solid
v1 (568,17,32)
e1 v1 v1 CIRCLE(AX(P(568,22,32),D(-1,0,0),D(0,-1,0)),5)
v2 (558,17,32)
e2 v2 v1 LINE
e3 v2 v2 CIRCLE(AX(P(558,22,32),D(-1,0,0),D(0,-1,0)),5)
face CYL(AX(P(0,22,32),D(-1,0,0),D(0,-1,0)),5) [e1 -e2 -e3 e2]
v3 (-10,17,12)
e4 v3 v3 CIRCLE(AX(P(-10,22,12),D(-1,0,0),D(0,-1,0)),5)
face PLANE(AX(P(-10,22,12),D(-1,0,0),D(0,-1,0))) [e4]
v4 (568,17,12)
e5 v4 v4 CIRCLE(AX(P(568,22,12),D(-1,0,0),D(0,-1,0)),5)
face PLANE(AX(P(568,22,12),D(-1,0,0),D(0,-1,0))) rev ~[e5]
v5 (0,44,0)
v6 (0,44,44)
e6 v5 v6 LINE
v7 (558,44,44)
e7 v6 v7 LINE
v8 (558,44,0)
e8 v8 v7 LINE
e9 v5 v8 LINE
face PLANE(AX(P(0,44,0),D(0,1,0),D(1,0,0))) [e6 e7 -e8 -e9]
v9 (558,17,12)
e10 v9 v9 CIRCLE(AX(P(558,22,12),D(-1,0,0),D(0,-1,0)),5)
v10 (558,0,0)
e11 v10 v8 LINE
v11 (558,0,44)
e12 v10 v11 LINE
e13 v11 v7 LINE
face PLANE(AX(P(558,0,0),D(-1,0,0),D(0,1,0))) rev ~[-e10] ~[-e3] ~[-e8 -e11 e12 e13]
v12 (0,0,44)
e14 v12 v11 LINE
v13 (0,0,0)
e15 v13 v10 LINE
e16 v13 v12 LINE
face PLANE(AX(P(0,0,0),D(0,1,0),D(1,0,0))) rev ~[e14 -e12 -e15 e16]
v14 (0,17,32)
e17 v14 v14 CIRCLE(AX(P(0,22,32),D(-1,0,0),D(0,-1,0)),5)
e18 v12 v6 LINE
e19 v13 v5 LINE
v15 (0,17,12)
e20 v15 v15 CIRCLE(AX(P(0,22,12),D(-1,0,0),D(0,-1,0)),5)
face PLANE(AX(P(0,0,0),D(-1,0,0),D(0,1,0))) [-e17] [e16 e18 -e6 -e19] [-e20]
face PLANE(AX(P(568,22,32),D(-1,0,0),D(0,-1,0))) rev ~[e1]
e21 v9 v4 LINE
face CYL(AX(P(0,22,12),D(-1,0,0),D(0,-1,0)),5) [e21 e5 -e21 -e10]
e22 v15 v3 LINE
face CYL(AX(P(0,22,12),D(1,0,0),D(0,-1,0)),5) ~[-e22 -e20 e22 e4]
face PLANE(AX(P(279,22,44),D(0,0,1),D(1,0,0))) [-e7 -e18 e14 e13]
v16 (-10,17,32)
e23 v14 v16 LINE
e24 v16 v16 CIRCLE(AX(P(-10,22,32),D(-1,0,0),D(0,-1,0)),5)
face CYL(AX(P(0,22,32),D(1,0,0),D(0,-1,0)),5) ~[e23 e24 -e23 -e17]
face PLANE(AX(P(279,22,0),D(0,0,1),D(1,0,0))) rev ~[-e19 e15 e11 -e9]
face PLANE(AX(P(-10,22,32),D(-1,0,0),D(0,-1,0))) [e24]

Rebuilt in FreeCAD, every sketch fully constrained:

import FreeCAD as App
import Part
import Sketcher
from FreeCAD import Vector


def add_polygon(sketch, points):
    """Adds a closed chain of lines whose ends are joined by coincident constraints."""
    first, n = sketch.GeometryCount, len(points)
    for a, b in zip(points, points[1:] + points[:1]):
        sketch.addGeometry(Part.LineSegment(App.Vector(*a, 0), App.Vector(*b, 0)), False)
    for i in range(n):
        sketch.addConstraint(Sketcher.Constraint("Coincident", first + i, 2, first + (i + 1) % n, 1))

doc = App.newDocument("Part")
body = doc.addObject("PartDesign::Body", "Body")

sketch1 = doc.addObject("Sketcher::SketchObject", "Sketch")
body.addObject(sketch1)
sketch1.AttachmentSupport = (doc.XY_Plane, [""])
sketch1.MapMode = "FlatFace"
add_polygon(sketch1, [(0, 44), (0, 0), (558, 0), (558, 44)])
sketch1.addConstraint(Sketcher.Constraint("Vertical", 0))
sketch1.addConstraint(Sketcher.Constraint("Horizontal", 1))
sketch1.addConstraint(Sketcher.Constraint("Vertical", 2))
sketch1.addConstraint(Sketcher.Constraint("Horizontal", 3))
sketch1.addConstraint(Sketcher.Constraint("Coincident", 0, 2, -1, 1))
sketch1.addConstraint(Sketcher.Constraint("DistanceX", 1, 1, 1, 2, 558.0))
sketch1.addConstraint(Sketcher.Constraint("DistanceY", 0, 2, 0, 1, 44.0))
pad1 = doc.addObject("PartDesign::Pad", "Pad")
body.addObject(pad1)
pad1.Profile = sketch1
pad1.Length = 44

sketch2 = doc.addObject("Sketcher::SketchObject", "Sketch001")
body.addObject(sketch2)
sketch2.AttachmentSupport = (doc.YZ_Plane, [""])
sketch2.MapMode = "FlatFace"
sketch2.addGeometry(Part.Circle(Vector(22, 32, 0), Vector(0, 0, 1), 5), False)
sketch2.addGeometry(Part.Circle(Vector(22, 12, 0), Vector(0, 0, 1), 5), False)
sketch2.addConstraint(Sketcher.Constraint("Equal", 0, 1))
sketch2.addConstraint(Sketcher.Constraint("Vertical", 0, 3, 1, 3))
sketch2.addConstraint(Sketcher.Constraint("Diameter", 0, 10.0))
sketch2.addConstraint(Sketcher.Constraint("DistanceX", -1, 1, 0, 3, 22.0))
sketch2.addConstraint(Sketcher.Constraint("DistanceY", -1, 1, 0, 3, 32.0))
sketch2.addConstraint(Sketcher.Constraint("DistanceY", -1, 1, 1, 3, 12.0))
pad2 = doc.addObject("PartDesign::Pad", "Pad001")
body.addObject(pad2)
pad2.Profile = sketch2
pad2.Type = "TwoLengths"
pad2.Length = 10
pad2.Length2 = 568
pad2.Reversed = True

doc.recompute()
